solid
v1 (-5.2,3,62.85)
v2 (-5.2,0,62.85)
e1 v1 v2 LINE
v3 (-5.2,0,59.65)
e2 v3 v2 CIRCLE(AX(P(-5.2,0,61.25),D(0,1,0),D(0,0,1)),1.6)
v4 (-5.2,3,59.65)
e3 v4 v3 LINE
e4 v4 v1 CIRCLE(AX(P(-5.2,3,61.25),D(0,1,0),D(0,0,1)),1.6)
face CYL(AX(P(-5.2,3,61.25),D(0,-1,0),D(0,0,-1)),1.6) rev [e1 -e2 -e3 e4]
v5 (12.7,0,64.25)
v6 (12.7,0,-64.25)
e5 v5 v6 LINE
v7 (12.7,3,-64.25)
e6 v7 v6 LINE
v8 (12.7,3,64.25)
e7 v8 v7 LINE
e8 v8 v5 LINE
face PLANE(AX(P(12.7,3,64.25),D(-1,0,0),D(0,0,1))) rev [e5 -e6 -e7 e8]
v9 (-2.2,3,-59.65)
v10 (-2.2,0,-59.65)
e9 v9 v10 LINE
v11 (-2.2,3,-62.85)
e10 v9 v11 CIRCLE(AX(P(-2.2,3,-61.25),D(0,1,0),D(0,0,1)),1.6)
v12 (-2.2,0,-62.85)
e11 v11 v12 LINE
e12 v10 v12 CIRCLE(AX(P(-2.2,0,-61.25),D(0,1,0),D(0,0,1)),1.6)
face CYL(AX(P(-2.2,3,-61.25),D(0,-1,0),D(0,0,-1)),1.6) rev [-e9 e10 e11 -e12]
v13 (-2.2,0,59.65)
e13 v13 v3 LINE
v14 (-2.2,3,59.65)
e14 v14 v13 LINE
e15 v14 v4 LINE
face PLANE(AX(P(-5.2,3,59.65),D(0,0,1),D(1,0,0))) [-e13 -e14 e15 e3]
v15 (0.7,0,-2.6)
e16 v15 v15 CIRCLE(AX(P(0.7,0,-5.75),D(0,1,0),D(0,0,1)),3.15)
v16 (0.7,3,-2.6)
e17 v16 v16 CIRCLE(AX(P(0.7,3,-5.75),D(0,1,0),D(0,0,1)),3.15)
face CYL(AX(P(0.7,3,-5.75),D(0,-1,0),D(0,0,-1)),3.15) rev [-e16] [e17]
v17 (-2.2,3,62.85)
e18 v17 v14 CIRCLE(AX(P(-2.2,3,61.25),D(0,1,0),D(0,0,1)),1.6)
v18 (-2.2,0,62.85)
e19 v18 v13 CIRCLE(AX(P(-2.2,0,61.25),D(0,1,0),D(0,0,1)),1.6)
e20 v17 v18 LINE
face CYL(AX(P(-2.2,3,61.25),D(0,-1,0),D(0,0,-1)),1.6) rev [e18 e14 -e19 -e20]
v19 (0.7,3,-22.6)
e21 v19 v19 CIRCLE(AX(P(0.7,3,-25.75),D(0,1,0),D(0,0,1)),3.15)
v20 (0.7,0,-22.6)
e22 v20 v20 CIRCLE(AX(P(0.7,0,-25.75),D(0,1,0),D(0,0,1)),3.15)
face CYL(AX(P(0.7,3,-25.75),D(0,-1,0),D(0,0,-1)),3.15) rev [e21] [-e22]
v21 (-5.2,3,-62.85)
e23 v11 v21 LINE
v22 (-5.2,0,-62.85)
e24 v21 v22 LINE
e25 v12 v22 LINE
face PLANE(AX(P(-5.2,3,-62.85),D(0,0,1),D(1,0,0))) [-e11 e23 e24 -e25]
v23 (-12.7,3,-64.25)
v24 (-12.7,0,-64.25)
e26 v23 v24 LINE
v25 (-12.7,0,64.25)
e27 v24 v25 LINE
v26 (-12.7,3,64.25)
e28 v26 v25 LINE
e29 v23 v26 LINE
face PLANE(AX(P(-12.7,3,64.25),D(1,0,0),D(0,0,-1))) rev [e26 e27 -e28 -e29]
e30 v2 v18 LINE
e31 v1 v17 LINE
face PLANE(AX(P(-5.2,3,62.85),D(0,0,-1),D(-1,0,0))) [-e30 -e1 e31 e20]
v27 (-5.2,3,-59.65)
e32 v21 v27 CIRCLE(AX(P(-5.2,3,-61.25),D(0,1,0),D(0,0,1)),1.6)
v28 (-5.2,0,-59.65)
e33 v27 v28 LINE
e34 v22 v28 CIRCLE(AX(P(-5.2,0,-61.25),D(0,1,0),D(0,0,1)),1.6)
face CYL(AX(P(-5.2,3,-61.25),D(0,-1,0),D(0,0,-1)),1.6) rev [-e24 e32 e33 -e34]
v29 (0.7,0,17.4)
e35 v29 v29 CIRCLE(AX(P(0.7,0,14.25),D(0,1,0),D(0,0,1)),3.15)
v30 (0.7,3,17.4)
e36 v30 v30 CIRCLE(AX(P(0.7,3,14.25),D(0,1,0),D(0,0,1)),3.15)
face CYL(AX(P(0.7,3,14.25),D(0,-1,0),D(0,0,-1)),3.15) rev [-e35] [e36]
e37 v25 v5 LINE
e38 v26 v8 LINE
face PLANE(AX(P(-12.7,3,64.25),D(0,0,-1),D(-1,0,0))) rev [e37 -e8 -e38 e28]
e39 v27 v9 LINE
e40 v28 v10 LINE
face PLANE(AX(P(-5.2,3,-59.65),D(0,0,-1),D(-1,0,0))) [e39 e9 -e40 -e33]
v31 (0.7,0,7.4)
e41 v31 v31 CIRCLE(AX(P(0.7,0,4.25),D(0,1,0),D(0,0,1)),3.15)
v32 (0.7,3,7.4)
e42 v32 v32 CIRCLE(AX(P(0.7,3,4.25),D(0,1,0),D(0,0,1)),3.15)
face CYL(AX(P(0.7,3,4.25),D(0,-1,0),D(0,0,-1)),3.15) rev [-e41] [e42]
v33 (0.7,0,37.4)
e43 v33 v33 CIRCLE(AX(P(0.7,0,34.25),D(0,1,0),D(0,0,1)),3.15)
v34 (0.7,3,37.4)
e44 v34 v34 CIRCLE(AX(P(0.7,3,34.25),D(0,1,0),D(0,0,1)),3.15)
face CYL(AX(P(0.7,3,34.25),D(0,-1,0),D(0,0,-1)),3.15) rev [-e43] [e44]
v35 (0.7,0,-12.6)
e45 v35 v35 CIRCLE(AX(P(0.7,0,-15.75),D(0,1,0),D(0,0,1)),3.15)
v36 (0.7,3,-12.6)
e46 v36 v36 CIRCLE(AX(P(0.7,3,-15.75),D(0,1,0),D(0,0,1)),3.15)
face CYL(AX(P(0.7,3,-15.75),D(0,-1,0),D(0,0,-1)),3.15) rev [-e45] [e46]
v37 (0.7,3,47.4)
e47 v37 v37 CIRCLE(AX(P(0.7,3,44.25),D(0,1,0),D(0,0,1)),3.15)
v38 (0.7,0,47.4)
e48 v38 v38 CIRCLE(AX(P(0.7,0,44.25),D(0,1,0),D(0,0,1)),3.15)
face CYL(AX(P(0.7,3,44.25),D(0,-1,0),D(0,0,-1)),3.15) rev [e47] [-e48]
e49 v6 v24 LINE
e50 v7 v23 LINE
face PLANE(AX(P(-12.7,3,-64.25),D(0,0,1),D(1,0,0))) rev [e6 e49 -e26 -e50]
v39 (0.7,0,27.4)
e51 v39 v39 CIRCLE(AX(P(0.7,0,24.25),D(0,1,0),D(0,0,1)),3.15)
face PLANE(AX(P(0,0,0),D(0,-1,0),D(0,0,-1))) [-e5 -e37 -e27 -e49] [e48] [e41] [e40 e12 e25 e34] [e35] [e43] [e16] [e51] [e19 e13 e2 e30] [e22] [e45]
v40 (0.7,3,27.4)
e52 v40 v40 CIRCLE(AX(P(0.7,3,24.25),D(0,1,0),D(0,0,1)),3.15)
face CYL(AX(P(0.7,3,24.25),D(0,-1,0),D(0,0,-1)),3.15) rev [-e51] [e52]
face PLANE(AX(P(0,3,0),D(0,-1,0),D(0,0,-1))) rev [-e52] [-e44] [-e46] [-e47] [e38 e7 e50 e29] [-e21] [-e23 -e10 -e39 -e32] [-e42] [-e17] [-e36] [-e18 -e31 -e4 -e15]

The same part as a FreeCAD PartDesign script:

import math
import FreeCAD as App
import Part
import Sketcher
from FreeCAD import Vector


def add_polygon(sketch, points):
    """Adds a closed chain of lines whose ends are joined by coincident constraints."""
    first, n = sketch.GeometryCount, len(points)
    for a, b in zip(points, points[1:] + points[:1]):
        sketch.addGeometry(Part.LineSegment(App.Vector(*a, 0), App.Vector(*b, 0)), False)
    for i in range(n):
        sketch.addConstraint(Sketcher.Constraint("Coincident", first + i, 2, first + (i + 1) % n, 1))

doc = App.newDocument("Part")
body = doc.addObject("PartDesign::Body", "Body")

sketch1 = doc.addObject("Sketcher::SketchObject", "Sketch")
body.addObject(sketch1)
sketch1.AttachmentSupport = (doc.XZ_Plane, [""])
sketch1.MapMode = "FlatFace"
add_polygon(sketch1, [(-13, -64), (-13, 64), (13, 64), (13, -64)])
sketch1.addConstraint([
    Sketcher.Constraint("Vertical", 0),
    Sketcher.Constraint("Horizontal", 1),
    Sketcher.Constraint("Vertical", 2),
    Sketcher.Constraint("Horizontal", 3),
    Sketcher.Constraint("Symmetric", 0, 2, 2, 2, -1, 1),
    Sketcher.Constraint("DistanceX", 1, 1, 1, 2, 25.4),
    Sketcher.Constraint("DistanceY", 0, 1, 0, 2, 128.5),
])
pad1 = doc.addObject("PartDesign::Pad", "Pad")
body.addObject(pad1)
pad1.Profile = sketch1
pad1.Length = 3
pad1.Reversed = True

sketch2 = doc.addObject("Sketcher::SketchObject", "Sketch001")
body.addObject(sketch2)
sketch2.AttachmentSupport = (doc.XZ_Plane, [""])
sketch2.MapMode = "FlatFace"
sketch2.addGeometry([
    Part.LineSegment(Vector(-2.2, -62.9, 0), Vector(-5.2, -62.9, 0)),
    Part.ArcOfCircle(Part.Circle(Vector(-5.2, -61.2, 0), Vector(0, 0, 1), 1.6), math.radians(90), math.radians(270)),
    Part.LineSegment(Vector(-5.2, -59.6, 0), Vector(-2.2, -59.6, 0)),
    Part.ArcOfCircle(Part.Circle(Vector(-2.2, -61.2, 0), Vector(0, 0, 1), 1.6), math.radians(-90), math.radians(90)),
    Part.LineSegment(Vector(-2.2, 59.6, 0), Vector(-5.2, 59.6, 0)),
    Part.ArcOfCircle(Part.Circle(Vector(-5.2, 61.2, 0), Vector(0, 0, 1), 1.6), math.radians(90), math.radians(270)),
    Part.LineSegment(Vector(-5.2, 62.9, 0), Vector(-2.2, 62.9, 0)),
    Part.ArcOfCircle(Part.Circle(Vector(-2.2, 61.2, 0), Vector(0, 0, 1), 1.6), math.radians(-90), math.radians(90)),
], False)
sketch2.addConstraint([
    Sketcher.Constraint("Tangent", 0, 2, 1, 2),
    Sketcher.Constraint("Tangent", 1, 1, 2, 1),
    Sketcher.Constraint("Tangent", 2, 2, 3, 2),
    Sketcher.Constraint("Tangent", 3, 1, 0, 1),
    Sketcher.Constraint("Tangent", 4, 2, 5, 2),
    Sketcher.Constraint("Tangent", 5, 1, 6, 1),
    Sketcher.Constraint("Tangent", 6, 2, 7, 2),
    Sketcher.Constraint("Tangent", 7, 1, 4, 1),
    Sketcher.Constraint("Horizontal", 0),
    Sketcher.Constraint("Horizontal", 2),
    Sketcher.Constraint("Horizontal", 4),
    Sketcher.Constraint("Horizontal", 6),
    Sketcher.Constraint("Equal", 3, 5),
    Sketcher.Constraint("Symmetric", 1, 3, 5, 3, -1),
    Sketcher.Constraint("Vertical", 3, 3, 7, 3),
    Sketcher.Constraint("Radius", 1, 1.6),
    Sketcher.Constraint("DistanceX", 0, 2, 0, 1, 3.0),
    Sketcher.Constraint("DistanceX", 1, 3, -1, 1, 5.2),
    Sketcher.Constraint("DistanceY", 1, 3, 5, 3, 122.5),
])
pocket1 = doc.addObject("PartDesign::Pocket", "Pocket")
body.addObject(pocket1)
pocket1.Profile = sketch2
pocket1.Type = "ThroughAll"

sketch3 = doc.addObject("Sketcher::SketchObject", "Sketch002")
body.addObject(sketch3)
sketch3.AttachmentSupport = (doc.XZ_Plane, [""])
sketch3.MapMode = "FlatFace"
sketch3.addGeometry([
    Part.Circle(Vector(0.7, 44.2, 0), Vector(0, 0, 1), 3.1),
    Part.Circle(Vector(0.7, 34.2, 0), Vector(0, 0, 1), 3.1),
    Part.Circle(Vector(0.7, 24.2, 0), Vector(0, 0, 1), 3.1),
    Part.Circle(Vector(0.7, 14.2, 0), Vector(0, 0, 1), 3.1),
    Part.Circle(Vector(0.7, 4.2, 0), Vector(0, 0, 1), 3.1),
    Part.Circle(Vector(0.7, -5.8, 0), Vector(0, 0, 1), 3.1),
    Part.Circle(Vector(0.7, -15.8, 0), Vector(0, 0, 1), 3.1),
    Part.Circle(Vector(0.7, -25.8, 0), Vector(0, 0, 1), 3.1),
], False)
sketch3.addConstraint([
    Sketcher.Constraint("Equal", 0, 1),
    Sketcher.Constraint("Equal", 1, 2),
    Sketcher.Constraint("Equal", 2, 3),
    Sketcher.Constraint("Equal", 3, 4),
    Sketcher.Constraint("Equal", 4, 5),
    Sketcher.Constraint("Equal", 5, 6),
    Sketcher.Constraint("Equal", 6, 7),
    Sketcher.Constraint("Vertical", 0, 3, 1, 3),
    Sketcher.Constraint("Vertical", 1, 3, 2, 3),
    Sketcher.Constraint("Vertical", 2, 3, 3, 3),
    Sketcher.Constraint("Vertical", 3, 3, 4, 3),
    Sketcher.Constraint("Vertical", 4, 3, 5, 3),
    Sketcher.Constraint("Vertical", 5, 3, 6, 3),
    Sketcher.Constraint("Vertical", 6, 3, 7, 3),
    Sketcher.Constraint("Diameter", 0, 6.3),
    Sketcher.Constraint("DistanceY", 1, 3, 0, 3, 10.0),
    Sketcher.Constraint("DistanceY", 2, 3, 1, 3, 10.0),
    Sketcher.Constraint("DistanceY", 3, 3, 2, 3, 10.0),
    Sketcher.Constraint("DistanceY", 4, 3, 3, 3, 10.0),
    Sketcher.Constraint("DistanceY", 5, 3, 4, 3, 10.0),
    Sketcher.Constraint("DistanceY", 6, 3, 5, 3, 10.0),
    Sketcher.Constraint("DistanceY", 7, 3, 6, 3, 10.0),
    Sketcher.Constraint("DistanceX", -1, 1, 0, 3, 0.7),
    Sketcher.Constraint("DistanceY", -1, 1, 0, 3, 44.25),
])
pocket2 = doc.addObject("PartDesign::Pocket", "Pocket001")
body.addObject(pocket2)
pocket2.Profile = sketch3
pocket2.Type = "ThroughAll"

doc.recompute()
